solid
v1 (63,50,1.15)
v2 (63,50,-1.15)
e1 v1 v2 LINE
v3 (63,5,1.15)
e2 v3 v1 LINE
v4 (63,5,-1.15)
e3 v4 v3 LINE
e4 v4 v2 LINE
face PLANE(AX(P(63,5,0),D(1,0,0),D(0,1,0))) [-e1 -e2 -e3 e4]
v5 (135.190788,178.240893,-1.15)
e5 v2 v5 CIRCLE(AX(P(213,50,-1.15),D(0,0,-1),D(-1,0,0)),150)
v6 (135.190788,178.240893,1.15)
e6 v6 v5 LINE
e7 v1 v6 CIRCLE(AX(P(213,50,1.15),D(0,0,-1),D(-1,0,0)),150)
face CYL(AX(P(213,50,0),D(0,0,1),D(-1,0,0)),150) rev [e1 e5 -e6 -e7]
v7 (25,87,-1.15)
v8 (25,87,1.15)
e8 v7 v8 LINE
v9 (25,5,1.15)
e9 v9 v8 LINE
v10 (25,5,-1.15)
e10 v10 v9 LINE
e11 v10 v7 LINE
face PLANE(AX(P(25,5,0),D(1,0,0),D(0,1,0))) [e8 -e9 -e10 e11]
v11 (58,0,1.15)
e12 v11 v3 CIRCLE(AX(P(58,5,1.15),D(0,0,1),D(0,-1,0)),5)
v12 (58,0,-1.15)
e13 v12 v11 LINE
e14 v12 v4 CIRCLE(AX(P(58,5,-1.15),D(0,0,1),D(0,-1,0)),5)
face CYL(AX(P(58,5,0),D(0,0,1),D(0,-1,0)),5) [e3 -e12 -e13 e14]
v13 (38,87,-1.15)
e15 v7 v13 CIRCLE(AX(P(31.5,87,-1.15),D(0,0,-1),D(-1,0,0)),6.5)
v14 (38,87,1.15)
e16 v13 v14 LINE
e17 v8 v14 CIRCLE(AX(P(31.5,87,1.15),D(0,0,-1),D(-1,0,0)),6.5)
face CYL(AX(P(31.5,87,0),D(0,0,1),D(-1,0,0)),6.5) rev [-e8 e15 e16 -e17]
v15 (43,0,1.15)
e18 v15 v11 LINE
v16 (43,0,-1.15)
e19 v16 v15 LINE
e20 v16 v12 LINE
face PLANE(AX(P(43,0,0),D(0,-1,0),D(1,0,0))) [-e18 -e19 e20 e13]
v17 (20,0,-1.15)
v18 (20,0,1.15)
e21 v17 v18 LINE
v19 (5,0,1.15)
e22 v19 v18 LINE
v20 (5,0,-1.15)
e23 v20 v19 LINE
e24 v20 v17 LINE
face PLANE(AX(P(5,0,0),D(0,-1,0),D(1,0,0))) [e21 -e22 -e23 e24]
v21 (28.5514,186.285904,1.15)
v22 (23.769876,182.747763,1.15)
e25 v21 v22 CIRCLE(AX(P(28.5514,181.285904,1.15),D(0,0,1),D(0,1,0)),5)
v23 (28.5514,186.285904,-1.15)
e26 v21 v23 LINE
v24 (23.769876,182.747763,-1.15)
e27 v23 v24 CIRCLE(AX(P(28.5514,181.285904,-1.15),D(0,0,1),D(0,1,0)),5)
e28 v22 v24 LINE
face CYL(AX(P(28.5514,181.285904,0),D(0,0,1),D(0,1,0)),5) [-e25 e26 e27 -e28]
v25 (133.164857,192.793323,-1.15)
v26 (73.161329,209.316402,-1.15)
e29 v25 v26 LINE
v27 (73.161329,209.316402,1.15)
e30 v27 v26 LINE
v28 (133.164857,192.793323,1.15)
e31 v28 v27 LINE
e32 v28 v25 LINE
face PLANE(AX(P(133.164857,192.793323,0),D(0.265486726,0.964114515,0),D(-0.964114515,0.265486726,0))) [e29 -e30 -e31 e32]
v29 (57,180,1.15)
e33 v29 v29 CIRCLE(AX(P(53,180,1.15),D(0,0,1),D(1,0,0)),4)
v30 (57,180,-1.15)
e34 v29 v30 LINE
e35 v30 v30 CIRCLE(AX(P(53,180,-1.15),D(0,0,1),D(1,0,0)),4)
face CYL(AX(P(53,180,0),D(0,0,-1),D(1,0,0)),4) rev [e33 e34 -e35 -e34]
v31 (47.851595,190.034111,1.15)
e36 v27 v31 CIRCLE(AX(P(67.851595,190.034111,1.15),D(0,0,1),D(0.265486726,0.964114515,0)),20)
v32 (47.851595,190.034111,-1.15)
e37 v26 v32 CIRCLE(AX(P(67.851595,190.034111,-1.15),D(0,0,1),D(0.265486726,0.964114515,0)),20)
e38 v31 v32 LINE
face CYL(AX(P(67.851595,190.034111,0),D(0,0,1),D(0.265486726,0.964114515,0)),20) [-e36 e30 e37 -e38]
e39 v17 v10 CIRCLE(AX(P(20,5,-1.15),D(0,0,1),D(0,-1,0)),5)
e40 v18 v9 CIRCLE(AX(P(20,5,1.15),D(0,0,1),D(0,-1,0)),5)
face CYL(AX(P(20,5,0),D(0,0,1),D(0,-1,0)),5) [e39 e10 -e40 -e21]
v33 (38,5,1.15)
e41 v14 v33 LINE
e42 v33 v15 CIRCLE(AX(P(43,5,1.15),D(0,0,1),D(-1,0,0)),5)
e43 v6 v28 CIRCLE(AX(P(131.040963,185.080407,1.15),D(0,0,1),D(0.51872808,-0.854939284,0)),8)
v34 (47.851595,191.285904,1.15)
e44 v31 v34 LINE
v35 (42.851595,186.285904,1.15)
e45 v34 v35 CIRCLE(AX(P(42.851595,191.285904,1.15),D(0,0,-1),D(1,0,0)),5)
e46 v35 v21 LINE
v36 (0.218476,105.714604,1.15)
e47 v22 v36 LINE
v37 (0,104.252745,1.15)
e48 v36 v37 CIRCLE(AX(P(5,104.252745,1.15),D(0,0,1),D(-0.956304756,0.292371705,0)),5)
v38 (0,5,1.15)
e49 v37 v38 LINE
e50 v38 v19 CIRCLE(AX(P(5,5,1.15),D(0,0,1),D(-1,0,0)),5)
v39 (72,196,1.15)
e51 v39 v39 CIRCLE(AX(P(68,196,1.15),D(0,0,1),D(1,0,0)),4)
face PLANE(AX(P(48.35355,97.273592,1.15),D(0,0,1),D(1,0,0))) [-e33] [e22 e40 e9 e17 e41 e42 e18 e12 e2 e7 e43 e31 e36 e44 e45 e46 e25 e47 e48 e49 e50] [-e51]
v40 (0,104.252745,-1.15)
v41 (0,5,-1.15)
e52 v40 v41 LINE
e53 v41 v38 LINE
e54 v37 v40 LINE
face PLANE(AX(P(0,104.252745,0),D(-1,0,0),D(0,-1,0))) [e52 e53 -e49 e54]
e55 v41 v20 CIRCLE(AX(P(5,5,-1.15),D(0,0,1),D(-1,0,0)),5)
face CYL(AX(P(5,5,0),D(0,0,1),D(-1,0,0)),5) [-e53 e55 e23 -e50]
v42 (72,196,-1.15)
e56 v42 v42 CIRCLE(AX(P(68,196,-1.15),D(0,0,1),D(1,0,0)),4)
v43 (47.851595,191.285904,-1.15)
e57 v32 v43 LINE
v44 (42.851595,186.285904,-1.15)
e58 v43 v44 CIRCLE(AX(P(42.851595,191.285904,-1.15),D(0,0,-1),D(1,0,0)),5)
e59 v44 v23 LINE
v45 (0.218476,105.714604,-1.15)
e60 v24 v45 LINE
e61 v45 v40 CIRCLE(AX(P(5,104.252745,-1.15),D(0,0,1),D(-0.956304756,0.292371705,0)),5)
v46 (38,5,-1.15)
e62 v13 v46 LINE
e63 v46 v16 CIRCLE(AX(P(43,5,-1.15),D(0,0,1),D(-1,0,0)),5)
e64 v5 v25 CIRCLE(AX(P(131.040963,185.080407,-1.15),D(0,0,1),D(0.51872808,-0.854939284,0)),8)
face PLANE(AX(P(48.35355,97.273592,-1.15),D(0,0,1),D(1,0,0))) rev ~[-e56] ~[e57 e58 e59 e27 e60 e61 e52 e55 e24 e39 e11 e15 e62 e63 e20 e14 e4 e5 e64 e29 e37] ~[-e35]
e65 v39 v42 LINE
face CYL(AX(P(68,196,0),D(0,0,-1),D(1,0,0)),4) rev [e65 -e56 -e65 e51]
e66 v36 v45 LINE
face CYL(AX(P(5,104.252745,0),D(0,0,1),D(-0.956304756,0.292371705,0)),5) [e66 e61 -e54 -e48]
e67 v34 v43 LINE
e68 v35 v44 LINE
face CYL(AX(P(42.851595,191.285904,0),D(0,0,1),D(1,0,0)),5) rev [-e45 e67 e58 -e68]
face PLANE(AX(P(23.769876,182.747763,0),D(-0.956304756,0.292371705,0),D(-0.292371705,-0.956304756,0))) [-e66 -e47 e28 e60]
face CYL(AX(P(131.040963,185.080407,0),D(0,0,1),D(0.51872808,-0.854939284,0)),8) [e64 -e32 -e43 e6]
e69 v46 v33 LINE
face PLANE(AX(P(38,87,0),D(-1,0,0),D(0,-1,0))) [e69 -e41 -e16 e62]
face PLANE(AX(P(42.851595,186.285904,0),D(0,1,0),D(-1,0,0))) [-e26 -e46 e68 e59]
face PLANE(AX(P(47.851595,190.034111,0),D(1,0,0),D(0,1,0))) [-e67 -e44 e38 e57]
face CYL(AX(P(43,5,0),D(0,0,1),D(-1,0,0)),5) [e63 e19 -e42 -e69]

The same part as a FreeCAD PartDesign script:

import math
import FreeCAD as App
import Part
import Sketcher

V = App.Vector
Q = App.Units.Quantity

doc = App.newDocument("Part")
params = doc.addObject("Spreadsheet::Sheet", "Params")
for row, (alias, value) in enumerate([
    ("sketch1_diameter", "8 mm"),
    ("sketch1_radius", "5 mm"),
    ("sketch1_radius2", "150 mm"),
    ("sketch1_radius3", "8 mm"),
    ("sketch1_radius4", "20 mm"),
    ("pad1_length", "2.3 mm"),
], start=1):
    params.set(f"A{row}", alias)
    params.set(f"B{row}", "=" + value)
    params.setAlias(f"B{row}", alias)

body = doc.addObject("PartDesign::Body", "Body")

# Sketch on XY plane
sketch1 = doc.addObject("Sketcher::SketchObject", "Sketch")
body.addObject(sketch1)
sketch1.AttachmentSupport = (doc.XY_Plane, [""])
sketch1.MapMode = "FlatFace"
sketch1.addGeometry([
    Part.LineSegment(V(0, 104.3, 0), V(0, 5, 0)),  # 0
    Part.ArcOfCircle(Part.Circle(V(5, 5, 0), V(0, 0, 1), 5), math.radians(180), math.radians(270)),  # 1
    Part.LineSegment(V(5, 0, 0), V(20, 0, 0)),  # 2
    Part.ArcOfCircle(Part.Circle(V(20, 5, 0), V(0, 0, 1), 5), math.radians(-90), math.radians(0)),  # 3
    Part.LineSegment(V(25, 5, 0), V(25, 87, 0)),  # 4
    Part.ArcOfCircle(Part.Circle(V(31.5, 87, 0), V(0, 0, 1), 6.5), math.radians(0), math.radians(180)),  # 5
    Part.LineSegment(V(38, 87, 0), V(38, 5, 0)),  # 6
    Part.ArcOfCircle(Part.Circle(V(43, 5, 0), V(0, 0, 1), 5), math.radians(180), math.radians(270)),  # 7
    Part.LineSegment(V(43, 0, 0), V(58, 0, 0)),  # 8
    Part.ArcOfCircle(Part.Circle(V(58, 5, 0), V(0, 0, 1), 5), math.radians(-90), math.radians(0)),  # 9
    Part.LineSegment(V(63, 5, 0), V(63, 50, 0)),  # 10
    Part.ArcOfCircle(Part.Circle(V(213, 50, 0), V(0, 0, 1), 150), math.radians(121), math.radians(180)),  # 11
    Part.ArcOfCircle(Part.Circle(V(131, 185.1, 0), V(0, 0, 1), 8), math.radians(-59), math.radians(75)),  # 12
    Part.LineSegment(V(133.2, 192.8, 0), V(73.2, 209.3, 0)),  # 13
    Part.ArcOfCircle(Part.Circle(V(67.9, 190, 0), V(0, 0, 1), 20), math.radians(75), math.radians(180)),  # 14
    Part.LineSegment(V(47.9, 190, 0), V(47.9, 191.3, 0)),  # 15
    Part.ArcOfCircle(Part.Circle(V(42.9, 191.3, 0), V(0, 0, 1), 5), math.radians(-90), math.radians(0)),  # 16
    Part.LineSegment(V(42.9, 186.3, 0), V(28.6, 186.3, 0)),  # 17
    Part.ArcOfCircle(Part.Circle(V(28.6, 181.3, 0), V(0, 0, 1), 5), math.radians(90), math.radians(163)),  # 18
    Part.LineSegment(V(23.8, 182.7, 0), V(0.2, 105.7, 0)),  # 19
    Part.ArcOfCircle(Part.Circle(V(5, 104.3, 0), V(0, 0, 1), 5), math.radians(163), math.radians(180)),  # 20
    Part.Circle(V(53, 180, 0), V(0, 0, 1), 4),  # 21
    Part.Circle(V(68, 196, 0), V(0, 0, 1), 4),  # 22
], False)
sketch1.addConstraint([
    Sketcher.Constraint("Tangent", 0, 2, 1, 1),
    Sketcher.Constraint("Tangent", 1, 2, 2, 1),
    Sketcher.Constraint("Tangent", 2, 2, 3, 1),
    Sketcher.Constraint("Tangent", 3, 2, 4, 1),
    Sketcher.Constraint("Tangent", 4, 2, 5, 2),
    Sketcher.Constraint("Tangent", 5, 1, 6, 1),
    Sketcher.Constraint("Tangent", 6, 2, 7, 1),
    Sketcher.Constraint("Tangent", 7, 2, 8, 1),
    Sketcher.Constraint("Tangent", 8, 2, 9, 1),
    Sketcher.Constraint("Tangent", 9, 2, 10, 1),
    Sketcher.Constraint("Tangent", 10, 2, 11, 2),
    Sketcher.Constraint("Tangent", 11, 1, 12, 1),
    Sketcher.Constraint("Tangent", 12, 2, 13, 1),
    Sketcher.Constraint("Tangent", 13, 2, 14, 1),
    Sketcher.Constraint("Tangent", 14, 2, 15, 1),
    Sketcher.Constraint("Tangent", 15, 2, 16, 2),
    Sketcher.Constraint("Tangent", 16, 1, 17, 1),
    Sketcher.Constraint("Tangent", 17, 2, 18, 1),
    Sketcher.Constraint("Tangent", 18, 2, 19, 1),
    Sketcher.Constraint("Tangent", 19, 2, 20, 1),
    Sketcher.Constraint("Tangent", 20, 2, 0, 1),
    Sketcher.Constraint("Vertical", 0),
    Sketcher.Constraint("Horizontal", 2),
    Sketcher.Constraint("Vertical", 4),
    Sketcher.Constraint("Vertical", 6),
    Sketcher.Constraint("Horizontal", 8),
    Sketcher.Constraint("Vertical", 10),
    Sketcher.Constraint("Vertical", 15),
    Sketcher.Constraint("Horizontal", 17),
    Sketcher.Constraint("Equal", 1, 3),
    Sketcher.Constraint("Equal", 3, 7),
    Sketcher.Constraint("Equal", 7, 9),
    Sketcher.Constraint("Equal", 9, 16),
    Sketcher.Constraint("Equal", 16, 18),
    Sketcher.Constraint("Equal", 18, 20),
    Sketcher.Constraint("Equal", 21, 22),
    Sketcher.Constraint("PointOnObject", 0, 2, -2),
    Sketcher.Constraint("PointOnObject", 1, 2, -1),
    Sketcher.Constraint("PointOnObject", 7, 2, -1),
    Sketcher.Constraint("Equal", 2, 8),
    Sketcher.Constraint("Diameter", 21, 8.0),
    Sketcher.Constraint("Radius", 1, 5.0),
    Sketcher.Constraint("Radius", 11, 150.0),
    Sketcher.Constraint("Radius", 12, 8.0),
    Sketcher.Constraint("Radius", 14, 20.0),
    Sketcher.Constraint("Radius", 5, 6.5),
    Sketcher.Constraint("DistanceX", 2, 1, 2, 2, 15.0),
    Sketcher.Constraint("DistanceY", 4, 1, 4, 2, 82.0),
    Sketcher.Constraint("DistanceY", 10, 1, 10, 2, 45.0),
    Sketcher.Constraint("Angle", 19, Q("-107 deg")),
    Sketcher.Constraint("DistanceX", -1, 1, 21, 3, 53.0),
    Sketcher.Constraint("DistanceY", -1, 1, 21, 3, 180.0),
    Sketcher.Constraint("DistanceX", -1, 1, 22, 3, 68.0),
    Sketcher.Constraint("DistanceY", -1, 1, 22, 3, 196.0),
    Sketcher.Constraint("DistanceX", -1, 1, 18, 3, 28.5514),
    Sketcher.Constraint("DistanceY", -1, 1, 13, 2, 209.316402),
    Sketcher.Constraint("Distance", 13, 62.23693),
    Sketcher.Constraint("DistanceX", 17, 2, 17, 1, 14.300195),
    Sketcher.Constraint("DistanceY", 0, 2, 0, 1, 99.252745),
])
sketch1.setExpression("Constraints[40]", "Params.sketch1_diameter")
sketch1.setExpression("Constraints[41]", "Params.sketch1_radius")
sketch1.setExpression("Constraints[42]", "Params.sketch1_radius2")
sketch1.setExpression("Constraints[43]", "Params.sketch1_radius3")
sketch1.setExpression("Constraints[44]", "Params.sketch1_radius4")
pad1 = doc.addObject("PartDesign::Pad", "Pad")
body.addObject(pad1)
pad1.Profile = sketch1
pad1.setExpression("Length", "Params.pad1_length")
pad1.Midplane = True

doc.recompute()
